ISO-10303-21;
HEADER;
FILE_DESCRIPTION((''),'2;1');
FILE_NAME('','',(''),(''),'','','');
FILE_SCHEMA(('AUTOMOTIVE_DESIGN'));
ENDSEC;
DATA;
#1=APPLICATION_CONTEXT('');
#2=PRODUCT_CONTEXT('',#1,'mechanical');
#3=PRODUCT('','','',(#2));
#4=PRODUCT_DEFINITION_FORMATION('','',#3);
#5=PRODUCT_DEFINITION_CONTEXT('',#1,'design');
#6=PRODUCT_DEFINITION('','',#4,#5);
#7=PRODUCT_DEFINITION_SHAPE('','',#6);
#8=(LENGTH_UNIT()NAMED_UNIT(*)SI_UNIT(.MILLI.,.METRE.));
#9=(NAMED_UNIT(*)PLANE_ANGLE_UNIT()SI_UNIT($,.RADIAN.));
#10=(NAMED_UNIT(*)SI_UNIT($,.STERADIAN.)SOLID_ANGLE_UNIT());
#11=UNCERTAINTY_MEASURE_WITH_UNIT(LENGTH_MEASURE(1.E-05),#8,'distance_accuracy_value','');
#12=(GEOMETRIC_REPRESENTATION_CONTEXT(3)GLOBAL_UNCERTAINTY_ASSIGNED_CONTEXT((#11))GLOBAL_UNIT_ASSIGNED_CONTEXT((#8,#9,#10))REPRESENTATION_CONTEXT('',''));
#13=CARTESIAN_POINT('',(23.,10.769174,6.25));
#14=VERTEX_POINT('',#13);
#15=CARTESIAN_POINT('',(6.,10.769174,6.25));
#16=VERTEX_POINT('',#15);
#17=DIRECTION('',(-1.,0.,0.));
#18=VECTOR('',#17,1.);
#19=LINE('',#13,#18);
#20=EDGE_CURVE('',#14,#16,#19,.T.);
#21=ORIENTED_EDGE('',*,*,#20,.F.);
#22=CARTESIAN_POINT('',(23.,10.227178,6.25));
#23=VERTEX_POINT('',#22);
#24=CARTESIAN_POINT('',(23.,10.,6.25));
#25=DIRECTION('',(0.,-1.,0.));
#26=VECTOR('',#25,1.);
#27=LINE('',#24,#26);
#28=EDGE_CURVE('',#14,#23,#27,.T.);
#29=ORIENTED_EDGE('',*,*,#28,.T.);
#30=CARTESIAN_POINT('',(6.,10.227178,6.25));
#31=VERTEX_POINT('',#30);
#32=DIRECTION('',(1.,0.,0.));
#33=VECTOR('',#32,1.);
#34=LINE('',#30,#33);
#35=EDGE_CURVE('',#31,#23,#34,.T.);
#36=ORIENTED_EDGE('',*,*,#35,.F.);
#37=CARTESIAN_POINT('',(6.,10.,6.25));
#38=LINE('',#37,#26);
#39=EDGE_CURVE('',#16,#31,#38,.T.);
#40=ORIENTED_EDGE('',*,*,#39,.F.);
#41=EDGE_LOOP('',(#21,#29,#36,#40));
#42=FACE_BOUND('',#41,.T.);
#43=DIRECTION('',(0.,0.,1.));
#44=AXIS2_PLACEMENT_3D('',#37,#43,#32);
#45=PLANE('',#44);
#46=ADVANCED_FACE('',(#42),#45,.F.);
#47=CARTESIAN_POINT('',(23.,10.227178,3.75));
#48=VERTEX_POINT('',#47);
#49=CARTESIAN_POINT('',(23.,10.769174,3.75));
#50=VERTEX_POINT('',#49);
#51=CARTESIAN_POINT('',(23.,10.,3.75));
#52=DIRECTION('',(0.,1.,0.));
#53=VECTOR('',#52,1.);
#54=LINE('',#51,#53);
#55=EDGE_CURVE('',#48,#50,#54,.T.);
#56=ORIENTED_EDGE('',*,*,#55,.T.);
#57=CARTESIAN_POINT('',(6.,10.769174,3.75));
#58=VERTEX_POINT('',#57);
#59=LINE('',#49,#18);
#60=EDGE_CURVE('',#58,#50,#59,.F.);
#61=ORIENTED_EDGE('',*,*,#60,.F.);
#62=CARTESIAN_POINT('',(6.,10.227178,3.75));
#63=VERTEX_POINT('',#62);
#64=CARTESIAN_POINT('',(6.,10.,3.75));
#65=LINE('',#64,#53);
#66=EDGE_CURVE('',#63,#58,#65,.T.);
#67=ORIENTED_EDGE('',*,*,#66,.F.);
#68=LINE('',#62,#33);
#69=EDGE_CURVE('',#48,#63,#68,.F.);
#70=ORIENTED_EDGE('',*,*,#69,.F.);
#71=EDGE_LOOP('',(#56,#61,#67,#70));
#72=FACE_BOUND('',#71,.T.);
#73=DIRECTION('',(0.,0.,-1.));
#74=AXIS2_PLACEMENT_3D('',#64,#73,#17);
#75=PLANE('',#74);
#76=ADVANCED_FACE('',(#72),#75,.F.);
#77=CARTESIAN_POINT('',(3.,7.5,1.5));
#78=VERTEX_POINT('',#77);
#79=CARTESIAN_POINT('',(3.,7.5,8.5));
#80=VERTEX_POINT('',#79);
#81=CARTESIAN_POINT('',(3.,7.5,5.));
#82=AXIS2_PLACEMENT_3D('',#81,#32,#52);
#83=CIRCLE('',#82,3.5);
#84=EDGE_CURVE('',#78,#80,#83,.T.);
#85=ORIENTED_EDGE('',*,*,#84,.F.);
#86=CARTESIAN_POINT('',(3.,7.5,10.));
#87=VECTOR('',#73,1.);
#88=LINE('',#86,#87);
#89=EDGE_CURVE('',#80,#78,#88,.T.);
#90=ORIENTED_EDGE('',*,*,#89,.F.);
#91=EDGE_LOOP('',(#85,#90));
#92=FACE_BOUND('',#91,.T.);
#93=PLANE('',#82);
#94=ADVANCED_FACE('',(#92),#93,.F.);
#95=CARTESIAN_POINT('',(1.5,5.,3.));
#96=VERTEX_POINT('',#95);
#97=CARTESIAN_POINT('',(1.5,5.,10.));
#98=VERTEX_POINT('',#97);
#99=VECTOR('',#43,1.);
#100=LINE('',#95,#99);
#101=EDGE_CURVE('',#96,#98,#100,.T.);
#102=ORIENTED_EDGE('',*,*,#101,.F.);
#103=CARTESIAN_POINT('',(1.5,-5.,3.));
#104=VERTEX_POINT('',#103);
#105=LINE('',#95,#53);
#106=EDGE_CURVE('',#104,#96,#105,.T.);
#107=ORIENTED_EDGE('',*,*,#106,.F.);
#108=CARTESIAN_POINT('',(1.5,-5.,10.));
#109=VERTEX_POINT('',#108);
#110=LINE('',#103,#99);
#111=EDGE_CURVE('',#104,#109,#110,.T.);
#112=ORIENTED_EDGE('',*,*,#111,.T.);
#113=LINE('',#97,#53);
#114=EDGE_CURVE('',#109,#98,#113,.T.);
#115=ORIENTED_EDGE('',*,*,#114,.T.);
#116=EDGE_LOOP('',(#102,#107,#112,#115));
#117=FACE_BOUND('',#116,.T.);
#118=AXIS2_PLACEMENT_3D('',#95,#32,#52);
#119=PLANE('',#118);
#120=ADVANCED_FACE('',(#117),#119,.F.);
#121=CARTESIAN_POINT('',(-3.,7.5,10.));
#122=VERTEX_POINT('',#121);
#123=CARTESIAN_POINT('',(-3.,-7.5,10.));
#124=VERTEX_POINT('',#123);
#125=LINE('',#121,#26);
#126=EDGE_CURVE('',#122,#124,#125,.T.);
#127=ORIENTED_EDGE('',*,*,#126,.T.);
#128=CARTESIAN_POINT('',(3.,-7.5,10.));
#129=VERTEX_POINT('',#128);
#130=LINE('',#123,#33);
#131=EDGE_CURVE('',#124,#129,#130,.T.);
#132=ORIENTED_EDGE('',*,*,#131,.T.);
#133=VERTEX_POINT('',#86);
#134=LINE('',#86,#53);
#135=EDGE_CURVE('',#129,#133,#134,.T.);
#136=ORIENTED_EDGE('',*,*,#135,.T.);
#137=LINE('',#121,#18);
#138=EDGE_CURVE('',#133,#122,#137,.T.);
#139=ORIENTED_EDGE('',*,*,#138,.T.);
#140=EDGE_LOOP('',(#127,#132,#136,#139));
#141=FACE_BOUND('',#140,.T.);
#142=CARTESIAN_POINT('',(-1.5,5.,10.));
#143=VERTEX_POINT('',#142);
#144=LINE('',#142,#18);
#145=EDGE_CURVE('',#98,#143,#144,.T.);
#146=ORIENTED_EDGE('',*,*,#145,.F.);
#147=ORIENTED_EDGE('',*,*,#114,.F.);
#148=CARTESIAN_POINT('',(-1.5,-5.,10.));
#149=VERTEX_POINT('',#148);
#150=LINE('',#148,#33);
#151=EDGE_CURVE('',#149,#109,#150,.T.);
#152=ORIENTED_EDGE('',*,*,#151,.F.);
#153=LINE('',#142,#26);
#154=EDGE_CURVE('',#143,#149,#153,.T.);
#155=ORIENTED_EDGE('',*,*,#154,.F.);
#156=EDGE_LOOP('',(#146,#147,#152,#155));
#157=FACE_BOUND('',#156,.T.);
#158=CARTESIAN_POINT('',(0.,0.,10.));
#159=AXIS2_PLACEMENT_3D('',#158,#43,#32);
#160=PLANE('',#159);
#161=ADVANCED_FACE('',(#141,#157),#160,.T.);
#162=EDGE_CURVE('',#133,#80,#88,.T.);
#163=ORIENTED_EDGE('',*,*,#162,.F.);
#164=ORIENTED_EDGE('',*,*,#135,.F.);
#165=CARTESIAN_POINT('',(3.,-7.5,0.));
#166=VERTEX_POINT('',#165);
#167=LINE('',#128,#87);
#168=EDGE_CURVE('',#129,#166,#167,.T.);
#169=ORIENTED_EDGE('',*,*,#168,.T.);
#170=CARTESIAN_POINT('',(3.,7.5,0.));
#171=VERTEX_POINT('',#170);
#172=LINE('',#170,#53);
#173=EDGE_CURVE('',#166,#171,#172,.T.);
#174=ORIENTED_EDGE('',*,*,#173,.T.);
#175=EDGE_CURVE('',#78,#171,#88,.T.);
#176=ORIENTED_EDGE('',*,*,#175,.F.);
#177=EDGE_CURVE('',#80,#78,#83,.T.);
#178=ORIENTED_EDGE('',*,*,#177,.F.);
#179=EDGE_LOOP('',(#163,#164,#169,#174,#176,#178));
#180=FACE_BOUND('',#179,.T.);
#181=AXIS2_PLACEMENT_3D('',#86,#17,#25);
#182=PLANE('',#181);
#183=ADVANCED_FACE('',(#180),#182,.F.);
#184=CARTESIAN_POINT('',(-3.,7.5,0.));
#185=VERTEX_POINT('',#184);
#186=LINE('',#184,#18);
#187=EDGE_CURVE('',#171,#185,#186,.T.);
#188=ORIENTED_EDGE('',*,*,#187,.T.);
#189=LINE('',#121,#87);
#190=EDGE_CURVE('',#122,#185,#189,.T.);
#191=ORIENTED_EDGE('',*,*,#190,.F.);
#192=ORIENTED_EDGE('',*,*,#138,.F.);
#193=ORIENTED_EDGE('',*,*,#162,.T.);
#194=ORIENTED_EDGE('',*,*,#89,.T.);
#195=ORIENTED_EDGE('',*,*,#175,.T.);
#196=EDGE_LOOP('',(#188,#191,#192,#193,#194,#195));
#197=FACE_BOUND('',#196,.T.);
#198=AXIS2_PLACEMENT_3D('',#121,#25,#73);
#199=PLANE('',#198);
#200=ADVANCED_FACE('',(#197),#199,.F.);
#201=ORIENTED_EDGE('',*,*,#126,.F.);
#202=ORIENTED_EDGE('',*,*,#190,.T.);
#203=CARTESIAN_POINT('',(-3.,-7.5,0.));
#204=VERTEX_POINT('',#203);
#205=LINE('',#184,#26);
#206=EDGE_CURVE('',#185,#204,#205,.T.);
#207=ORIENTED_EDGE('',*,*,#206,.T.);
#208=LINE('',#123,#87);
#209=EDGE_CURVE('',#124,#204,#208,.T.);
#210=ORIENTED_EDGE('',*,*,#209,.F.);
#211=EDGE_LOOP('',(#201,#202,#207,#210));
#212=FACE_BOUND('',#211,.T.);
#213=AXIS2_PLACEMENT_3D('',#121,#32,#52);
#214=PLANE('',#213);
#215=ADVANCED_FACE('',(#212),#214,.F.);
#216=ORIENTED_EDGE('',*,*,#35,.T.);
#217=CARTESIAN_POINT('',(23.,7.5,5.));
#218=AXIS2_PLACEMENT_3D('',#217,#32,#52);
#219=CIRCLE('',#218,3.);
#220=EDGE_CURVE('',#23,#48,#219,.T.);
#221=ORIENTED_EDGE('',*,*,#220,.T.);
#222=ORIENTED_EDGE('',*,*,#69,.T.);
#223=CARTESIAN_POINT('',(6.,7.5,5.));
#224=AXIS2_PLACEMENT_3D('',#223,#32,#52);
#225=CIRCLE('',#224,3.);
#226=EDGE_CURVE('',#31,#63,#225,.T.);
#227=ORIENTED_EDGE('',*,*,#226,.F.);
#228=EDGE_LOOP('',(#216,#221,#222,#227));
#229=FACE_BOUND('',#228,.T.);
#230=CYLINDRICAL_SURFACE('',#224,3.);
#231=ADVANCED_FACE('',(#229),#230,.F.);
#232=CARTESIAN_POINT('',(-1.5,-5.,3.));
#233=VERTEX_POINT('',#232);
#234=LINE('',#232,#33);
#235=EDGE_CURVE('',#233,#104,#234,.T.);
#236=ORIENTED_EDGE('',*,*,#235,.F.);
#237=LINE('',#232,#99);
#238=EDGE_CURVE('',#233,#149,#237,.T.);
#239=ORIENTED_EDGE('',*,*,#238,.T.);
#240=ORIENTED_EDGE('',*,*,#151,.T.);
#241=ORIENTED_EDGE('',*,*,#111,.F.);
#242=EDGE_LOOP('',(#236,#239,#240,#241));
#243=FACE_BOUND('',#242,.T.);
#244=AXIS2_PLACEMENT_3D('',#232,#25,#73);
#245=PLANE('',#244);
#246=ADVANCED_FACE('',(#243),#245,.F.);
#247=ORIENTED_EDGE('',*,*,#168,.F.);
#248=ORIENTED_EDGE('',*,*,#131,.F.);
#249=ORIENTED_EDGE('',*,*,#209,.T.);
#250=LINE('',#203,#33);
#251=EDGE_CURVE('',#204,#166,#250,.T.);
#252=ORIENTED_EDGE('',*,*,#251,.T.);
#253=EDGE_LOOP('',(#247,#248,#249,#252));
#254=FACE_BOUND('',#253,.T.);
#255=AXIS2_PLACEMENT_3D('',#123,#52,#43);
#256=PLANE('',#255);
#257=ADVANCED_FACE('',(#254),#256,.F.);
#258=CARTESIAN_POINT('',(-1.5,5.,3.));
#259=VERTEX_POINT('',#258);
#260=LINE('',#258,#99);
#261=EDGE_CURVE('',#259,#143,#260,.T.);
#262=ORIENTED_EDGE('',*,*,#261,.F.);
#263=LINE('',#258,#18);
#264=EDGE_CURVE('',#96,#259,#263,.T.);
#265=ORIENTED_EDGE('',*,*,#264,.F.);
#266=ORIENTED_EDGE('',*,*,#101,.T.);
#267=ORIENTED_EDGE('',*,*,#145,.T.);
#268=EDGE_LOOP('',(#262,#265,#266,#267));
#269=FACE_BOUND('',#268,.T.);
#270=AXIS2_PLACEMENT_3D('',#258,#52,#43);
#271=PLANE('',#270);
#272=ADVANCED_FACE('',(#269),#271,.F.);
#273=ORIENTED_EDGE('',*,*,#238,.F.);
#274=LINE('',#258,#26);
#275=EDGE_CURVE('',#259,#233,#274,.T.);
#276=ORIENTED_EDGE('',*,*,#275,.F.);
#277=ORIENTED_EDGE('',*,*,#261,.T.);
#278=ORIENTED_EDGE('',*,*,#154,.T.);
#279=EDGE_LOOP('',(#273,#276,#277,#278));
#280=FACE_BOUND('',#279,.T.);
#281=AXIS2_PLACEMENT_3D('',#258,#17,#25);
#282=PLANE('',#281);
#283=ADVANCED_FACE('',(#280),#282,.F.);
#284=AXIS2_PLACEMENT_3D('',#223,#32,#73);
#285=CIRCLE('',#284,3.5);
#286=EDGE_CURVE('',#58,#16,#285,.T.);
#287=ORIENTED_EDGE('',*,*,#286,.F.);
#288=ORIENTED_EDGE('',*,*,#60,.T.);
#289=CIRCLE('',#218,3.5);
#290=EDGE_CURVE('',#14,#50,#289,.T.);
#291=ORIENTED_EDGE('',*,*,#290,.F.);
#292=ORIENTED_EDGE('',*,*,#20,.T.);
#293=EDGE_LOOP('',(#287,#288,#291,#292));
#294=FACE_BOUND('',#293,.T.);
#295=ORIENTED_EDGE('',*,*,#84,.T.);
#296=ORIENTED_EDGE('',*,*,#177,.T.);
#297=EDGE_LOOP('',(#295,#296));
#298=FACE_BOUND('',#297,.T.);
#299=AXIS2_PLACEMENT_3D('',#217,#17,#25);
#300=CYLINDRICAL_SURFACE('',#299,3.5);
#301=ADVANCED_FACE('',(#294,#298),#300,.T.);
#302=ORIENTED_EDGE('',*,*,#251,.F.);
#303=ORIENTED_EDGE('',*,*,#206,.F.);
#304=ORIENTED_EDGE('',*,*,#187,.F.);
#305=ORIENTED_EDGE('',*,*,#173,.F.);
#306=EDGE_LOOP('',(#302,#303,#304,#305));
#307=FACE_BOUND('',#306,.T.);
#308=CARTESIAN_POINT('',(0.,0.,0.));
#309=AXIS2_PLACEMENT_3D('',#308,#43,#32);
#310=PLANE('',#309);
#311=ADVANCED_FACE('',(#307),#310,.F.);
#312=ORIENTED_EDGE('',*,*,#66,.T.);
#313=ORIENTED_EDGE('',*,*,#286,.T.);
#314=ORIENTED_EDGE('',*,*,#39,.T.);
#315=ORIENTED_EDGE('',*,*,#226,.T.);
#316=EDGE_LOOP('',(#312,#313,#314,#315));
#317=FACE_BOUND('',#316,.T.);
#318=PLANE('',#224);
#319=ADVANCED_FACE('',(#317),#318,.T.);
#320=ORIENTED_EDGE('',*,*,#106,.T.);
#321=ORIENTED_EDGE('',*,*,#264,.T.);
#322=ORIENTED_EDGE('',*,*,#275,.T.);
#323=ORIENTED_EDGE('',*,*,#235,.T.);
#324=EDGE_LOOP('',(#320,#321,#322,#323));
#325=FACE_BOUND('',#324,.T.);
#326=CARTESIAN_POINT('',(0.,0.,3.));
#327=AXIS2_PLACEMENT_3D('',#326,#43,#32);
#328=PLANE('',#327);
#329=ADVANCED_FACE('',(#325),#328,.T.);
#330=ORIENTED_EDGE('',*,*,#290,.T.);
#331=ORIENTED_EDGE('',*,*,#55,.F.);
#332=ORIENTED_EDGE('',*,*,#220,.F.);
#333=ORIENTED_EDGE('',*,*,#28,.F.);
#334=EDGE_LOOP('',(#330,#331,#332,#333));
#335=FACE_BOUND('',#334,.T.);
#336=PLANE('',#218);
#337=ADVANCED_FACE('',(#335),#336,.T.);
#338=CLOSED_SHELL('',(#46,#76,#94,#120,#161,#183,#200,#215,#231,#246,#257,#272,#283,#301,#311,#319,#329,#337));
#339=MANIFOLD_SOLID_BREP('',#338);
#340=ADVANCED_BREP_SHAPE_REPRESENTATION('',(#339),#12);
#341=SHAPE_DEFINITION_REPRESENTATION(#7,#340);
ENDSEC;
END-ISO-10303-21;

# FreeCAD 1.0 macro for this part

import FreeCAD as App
import Part
import Sketcher
from FreeCAD import Vector

doc = App.newDocument("Part")
params = doc.addObject("Spreadsheet::Sheet", "Params")
for row, (alias, value) in enumerate([
    ("sketch1_width", "6 mm"),
    ("sketch1_height", "15 mm"),
    ("pad1_length", "10 mm"),
    ("sketch2_width", "3 mm"),
    ("sketch2_height", "10 mm"),
    ("pocket1_length", "7 mm"),
    ("sketch3_diameter", "7 mm"),
    ("pad2_length", "20 mm"),
    ("sketch4_diameter", "6 mm"),
    ("pocket2_length", "17 mm"),
    ("sketch5_width", "1 mm"),
    ("sketch5_height", "2.5 mm"),
    ("pocket3_length", "17 mm"),
], start=1):
    params.set(f"A{row}", alias)
    params.set(f"B{row}", "=" + value)
    params.setAlias(f"B{row}", alias)

body = doc.addObject("PartDesign::Body", "Body")

sketch1 = body.newObject("Sketcher::SketchObject", "Sketch")
sketch1.AttachmentSupport = (doc.getObject("XY_Plane"), [""])
sketch1.MapMode = "FlatFace"
sketch1.addGeometry(Part.LineSegment(Vector(-3, 7.5, 0), Vector(-3, -7.5, 0)), False)
sketch1.addGeometry(Part.LineSegment(Vector(-3, -7.5, 0), Vector(3, -7.5, 0)), False)
sketch1.addGeometry(Part.LineSegment(Vector(3, -7.5, 0), Vector(3, 7.5, 0)), False)
sketch1.addGeometry(Part.LineSegment(Vector(3, 7.5, 0), Vector(-3, 7.5, 0)), False)
sketch1.addConstraint(Sketcher.Constraint("Coincident", 0, 2, 1, 1))
sketch1.addConstraint(Sketcher.Constraint("Coincident", 1, 2, 2, 1))
sketch1.addConstraint(Sketcher.Constraint("Coincident", 2, 2, 3, 1))
sketch1.addConstraint(Sketcher.Constraint("Coincident", 3, 2, 0, 1))
sketch1.addConstraint(Sketcher.Constraint("Vertical", 0))
sketch1.addConstraint(Sketcher.Constraint("Horizontal", 1))
sketch1.addConstraint(Sketcher.Constraint("Vertical", 2))
sketch1.addConstraint(Sketcher.Constraint("Horizontal", 3))
sketch1.addConstraint(Sketcher.Constraint("Symmetric", 0, 2, 2, 2, -1, 1))
sketch1.addConstraint(Sketcher.Constraint("DistanceX", 1, 1, 1, 2, 6.0))
sketch1.addConstraint(Sketcher.Constraint("DistanceY", 0, 2, 0, 1, 15.0))
sketch1.setExpression("Constraints[9]", "Params.sketch1_width")
sketch1.setExpression("Constraints[10]", "Params.sketch1_height")
pad1 = body.newObject("PartDesign::Pad", "Pad")
pad1.Profile = sketch1
pad1.setExpression("Length", "Params.pad1_length")

sketch2 = body.newObject("Sketcher::SketchObject", "Sketch001")
sketch2.AttachmentSupport = (doc.getObject("XY_Plane"), [""])
sketch2.MapMode = "FlatFace"
sketch2.AttachmentOffset = App.Placement(Vector(0, 0, 10), App.Rotation())
sketch2.addGeometry(Part.LineSegment(Vector(-1.5, 5, 0), Vector(-1.5, -5, 0)), False)
sketch2.addGeometry(Part.LineSegment(Vector(-1.5, -5, 0), Vector(1.5, -5, 0)), False)
sketch2.addGeometry(Part.LineSegment(Vector(1.5, -5, 0), Vector(1.5, 5, 0)), False)
sketch2.addGeometry(Part.LineSegment(Vector(1.5, 5, 0), Vector(-1.5, 5, 0)), False)
sketch2.addConstraint(Sketcher.Constraint("Coincident", 0, 2, 1, 1))
sketch2.addConstraint(Sketcher.Constraint("Coincident", 1, 2, 2, 1))
sketch2.addConstraint(Sketcher.Constraint("Coincident", 2, 2, 3, 1))
sketch2.addConstraint(Sketcher.Constraint("Coincident", 3, 2, 0, 1))
sketch2.addConstraint(Sketcher.Constraint("Vertical", 0))
sketch2.addConstraint(Sketcher.Constraint("Horizontal", 1))
sketch2.addConstraint(Sketcher.Constraint("Vertical", 2))
sketch2.addConstraint(Sketcher.Constraint("Horizontal", 3))
sketch2.addConstraint(Sketcher.Constraint("Symmetric", 0, 2, 2, 2, -1, 1))
sketch2.addConstraint(Sketcher.Constraint("DistanceX", 1, 1, 1, 2, 3.0))
sketch2.addConstraint(Sketcher.Constraint("DistanceY", 0, 2, 0, 1, 10.0))
sketch2.setExpression("Constraints[9]", "Params.sketch2_width")
sketch2.setExpression("Constraints[10]", "Params.sketch2_height")
pocket1 = body.newObject("PartDesign::Pocket", "Pocket")
pocket1.Profile = sketch2
pocket1.setExpression("Length", "Params.pocket1_length")

sketch3 = body.newObject("Sketcher::SketchObject", "Sketch002")
sketch3.AttachmentSupport = (doc.getObject("YZ_Plane"), [""])
sketch3.MapMode = "FlatFace"
sketch3.AttachmentOffset = App.Placement(Vector(0, 0, 3), App.Rotation())
sketch3.addGeometry(Part.Circle(Vector(7.5, 5, 0), Vector(0, 0, 1), 3.5), False)
sketch3.addConstraint(Sketcher.Constraint("Diameter", 0, 7.0))
sketch3.addConstraint(Sketcher.Constraint("DistanceY", -1, 1, 0, 3, 5.0))
sketch3.addConstraint(Sketcher.Constraint("DistanceX", -1, 1, 0, 3, 7.5))
sketch3.setExpression("Constraints[0]", "Params.sketch3_diameter")
pad2 = body.newObject("PartDesign::Pad", "Pad001")
pad2.Profile = sketch3
pad2.setExpression("Length", "Params.pad2_length")

sketch4 = body.newObject("Sketcher::SketchObject", "Sketch003")
sketch4.AttachmentSupport = (doc.getObject("YZ_Plane"), [""])
sketch4.MapMode = "FlatFace"
sketch4.AttachmentOffset = App.Placement(Vector(0, 0, 23), App.Rotation())
sketch4.addGeometry(Part.Circle(Vector(7.5, 5, 0), Vector(0, 0, 1), 3), False)
sketch4.addConstraint(Sketcher.Constraint("Diameter", 0, 6.0))
sketch4.addConstraint(Sketcher.Constraint("DistanceY", -1, 1, 0, 3, 5.0))
sketch4.addConstraint(Sketcher.Constraint("DistanceX", -1, 1, 0, 3, 7.5))
sketch4.setExpression("Constraints[0]", "Params.sketch4_diameter")
pocket2 = body.newObject("PartDesign::Pocket", "Pocket001")
pocket2.Profile = sketch4
pocket2.setExpression("Length", "Params.pocket2_length")

sketch5 = body.newObject("Sketcher::SketchObject", "Sketch004")
sketch5.AttachmentSupport = (doc.getObject("YZ_Plane"), [""])
sketch5.MapMode = "FlatFace"
sketch5.AttachmentOffset = App.Placement(Vector(0, 0, 23), App.Rotation())
sketch5.addGeometry(Part.LineSegment(Vector(11, 6.25, 0), Vector(10, 6.25, 0)), False)
sketch5.addGeometry(Part.LineSegment(Vector(10, 6.25, 0), Vector(10, 3.75, 0)), False)
sketch5.addGeometry(Part.LineSegment(Vector(10, 3.75, 0), Vector(11, 3.75, 0)), False)
sketch5.addGeometry(Part.LineSegment(Vector(11, 3.75, 0), Vector(11, 6.25, 0)), False)
sketch5.addConstraint(Sketcher.Constraint("Coincident", 0, 2, 1, 1))
sketch5.addConstraint(Sketcher.Constraint("Coincident", 1, 2, 2, 1))
sketch5.addConstraint(Sketcher.Constraint("Coincident", 2, 2, 3, 1))
sketch5.addConstraint(Sketcher.Constraint("Coincident", 3, 2, 0, 1))
sketch5.addConstraint(Sketcher.Constraint("Horizontal", 0))
sketch5.addConstraint(Sketcher.Constraint("Vertical", 1))
sketch5.addConstraint(Sketcher.Constraint("Horizontal", 2))
sketch5.addConstraint(Sketcher.Constraint("Vertical", 3))
sketch5.addConstraint(Sketcher.Constraint("DistanceX", 0, 2, 0, 1, 1.0))
sketch5.addConstraint(Sketcher.Constraint("DistanceY", 1, 2, 1, 1, 2.5))
sketch5.addConstraint(Sketcher.Constraint("DistanceX", -1, 1, 0, 2, 10.0))
sketch5.addConstraint(Sketcher.Constraint("DistanceY", -1, 1, 0, 2, 6.25))
sketch5.setExpression("Constraints[8]", "Params.sketch5_width")
sketch5.setExpression("Constraints[9]", "Params.sketch5_height")
pocket3 = body.newObject("PartDesign::Pocket", "Pocket002")
pocket3.Profile = sketch5
pocket3.setExpression("Length", "Params.pocket3_length")

doc.recompute()
